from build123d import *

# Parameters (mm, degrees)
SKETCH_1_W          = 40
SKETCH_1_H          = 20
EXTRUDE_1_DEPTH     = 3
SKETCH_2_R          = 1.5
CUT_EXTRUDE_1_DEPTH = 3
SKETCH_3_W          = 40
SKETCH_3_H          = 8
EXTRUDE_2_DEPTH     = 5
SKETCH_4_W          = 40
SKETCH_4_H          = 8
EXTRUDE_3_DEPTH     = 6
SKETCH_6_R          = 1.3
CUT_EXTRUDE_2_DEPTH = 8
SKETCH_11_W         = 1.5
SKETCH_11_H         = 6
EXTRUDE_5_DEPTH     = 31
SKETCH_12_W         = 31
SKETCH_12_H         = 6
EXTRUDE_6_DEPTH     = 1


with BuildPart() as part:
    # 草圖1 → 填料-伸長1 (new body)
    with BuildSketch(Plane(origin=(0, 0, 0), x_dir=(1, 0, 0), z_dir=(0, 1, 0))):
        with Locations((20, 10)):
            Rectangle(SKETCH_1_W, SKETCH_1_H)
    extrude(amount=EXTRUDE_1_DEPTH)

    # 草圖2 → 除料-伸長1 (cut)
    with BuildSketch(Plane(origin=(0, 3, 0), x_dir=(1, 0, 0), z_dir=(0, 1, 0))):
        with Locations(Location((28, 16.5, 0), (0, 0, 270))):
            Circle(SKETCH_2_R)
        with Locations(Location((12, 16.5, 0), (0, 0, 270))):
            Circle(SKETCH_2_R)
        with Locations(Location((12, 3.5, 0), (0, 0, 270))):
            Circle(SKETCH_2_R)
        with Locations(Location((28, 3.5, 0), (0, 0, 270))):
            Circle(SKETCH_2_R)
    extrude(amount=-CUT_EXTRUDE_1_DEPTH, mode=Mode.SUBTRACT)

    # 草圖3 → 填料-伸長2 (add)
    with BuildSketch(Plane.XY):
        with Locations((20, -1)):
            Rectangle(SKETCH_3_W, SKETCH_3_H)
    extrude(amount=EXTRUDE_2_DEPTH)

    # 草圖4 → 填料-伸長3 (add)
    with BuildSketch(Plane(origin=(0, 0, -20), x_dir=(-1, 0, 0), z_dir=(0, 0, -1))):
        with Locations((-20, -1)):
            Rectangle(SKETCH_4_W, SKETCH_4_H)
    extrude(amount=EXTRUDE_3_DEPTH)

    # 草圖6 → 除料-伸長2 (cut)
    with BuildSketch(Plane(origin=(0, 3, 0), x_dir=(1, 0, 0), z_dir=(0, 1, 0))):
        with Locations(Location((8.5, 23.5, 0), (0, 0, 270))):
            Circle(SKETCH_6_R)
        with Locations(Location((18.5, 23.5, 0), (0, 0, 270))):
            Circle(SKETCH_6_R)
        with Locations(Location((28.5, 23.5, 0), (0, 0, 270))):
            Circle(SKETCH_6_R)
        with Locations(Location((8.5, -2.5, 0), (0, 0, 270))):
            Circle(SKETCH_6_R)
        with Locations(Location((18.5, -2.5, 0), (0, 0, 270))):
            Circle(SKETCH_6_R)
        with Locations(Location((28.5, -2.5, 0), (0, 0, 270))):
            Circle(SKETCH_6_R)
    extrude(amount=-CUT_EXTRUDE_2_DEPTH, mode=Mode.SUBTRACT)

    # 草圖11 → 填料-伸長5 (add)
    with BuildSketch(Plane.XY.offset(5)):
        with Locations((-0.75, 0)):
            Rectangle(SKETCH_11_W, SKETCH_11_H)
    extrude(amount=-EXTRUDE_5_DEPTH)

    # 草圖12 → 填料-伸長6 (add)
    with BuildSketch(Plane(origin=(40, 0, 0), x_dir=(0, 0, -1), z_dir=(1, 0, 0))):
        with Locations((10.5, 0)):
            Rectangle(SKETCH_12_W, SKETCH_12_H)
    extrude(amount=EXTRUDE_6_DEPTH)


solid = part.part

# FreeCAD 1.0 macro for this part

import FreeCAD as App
import Part
import Sketcher
Q = App.Units.Quantity

doc = App.newDocument("Part")
body = doc.addObject("PartDesign::Body", "Body")

sketch1 = body.newObject("Sketcher::SketchObject", "Sketch")
sketch1.AttachmentSupport = (doc.getObject("XZ_Plane"), [""])
sketch1.MapMode = "FlatFace"
sketch1.addGeometry(Part.LineSegment(App.Vector(0, -20, 0), App.Vector(0, 0, 0)), False)
sketch1.addGeometry(Part.LineSegment(App.Vector(0, 0, 0), App.Vector(40, 0, 0)), False)
sketch1.addGeometry(Part.LineSegment(App.Vector(40, 0, 0), App.Vector(40, -20, 0)), False)
sketch1.addGeometry(Part.LineSegment(App.Vector(40, -20, 0), App.Vector(0, -20, 0)), False)
sketch1.addConstraint(Sketcher.Constraint("Coincident", 0, 2, 1, 1))
sketch1.addConstraint(Sketcher.Constraint("Coincident", 1, 2, 2, 1))
sketch1.addConstraint(Sketcher.Constraint("Coincident", 2, 2, 3, 1))
sketch1.addConstraint(Sketcher.Constraint("Coincident", 3, 2, 0, 1))
sketch1.addConstraint(Sketcher.Constraint("Vertical", 0))
sketch1.addConstraint(Sketcher.Constraint("Horizontal", 1))
sketch1.addConstraint(Sketcher.Constraint("Vertical", 2))
sketch1.addConstraint(Sketcher.Constraint("Horizontal", 3))
sketch1.addConstraint(Sketcher.Constraint("Coincident", 0, 2, -1, 1))
sketch1.addConstraint(Sketcher.Constraint("DistanceX", 1, 1, 1, 2, Q("40 mm")))
sketch1.addConstraint(Sketcher.Constraint("DistanceY", 0, 1, 0, 2, Q("20 mm")))
pad1 = body.newObject("PartDesign::Pad", "Pad")
pad1.Profile = sketch1
pad1.Length = 3
pad1.Reversed = True

sketch2 = body.newObject("Sketcher::SketchObject", "Sketch001")
sketch2.AttachmentSupport = (doc.getObject("XZ_Plane"), [""])
sketch2.MapMode = "FlatFace"
sketch2.AttachmentOffset = App.Placement(App.Vector(0, 0, -3), App.Rotation())
sketch2.addGeometry(Part.Circle(App.Vector(28, -16.5, 0), App.Vector(0, 0, 1), 1.5), False)
sketch2.addGeometry(Part.Circle(App.Vector(12, -16.5, 0), App.Vector(0, 0, 1), 1.5), False)
sketch2.addGeometry(Part.Circle(App.Vector(12, -3.5, 0), App.Vector(0, 0, 1), 1.5), False)
sketch2.addGeometry(Part.Circle(App.Vector(28, -3.5, 0), App.Vector(0, 0, 1), 1.5), False)
sketch2.addConstraint(Sketcher.Constraint("Equal", 0, 1))
sketch2.addConstraint(Sketcher.Constraint("Equal", 1, 2))
sketch2.addConstraint(Sketcher.Constraint("Equal", 2, 3))
sketch2.addConstraint(Sketcher.Constraint("Horizontal", 0, 3, 1, 3))
sketch2.addConstraint(Sketcher.Constraint("Horizontal", 2, 3, 3, 3))
sketch2.addConstraint(Sketcher.Constraint("Vertical", 1, 3, 2, 3))
sketch2.addConstraint(Sketcher.Constraint("Vertical", 0, 3, 3, 3))
sketch2.addConstraint(Sketcher.Constraint("Diameter", 0, Q("3 mm")))
sketch2.addConstraint(Sketcher.Constraint("DistanceX", -1, 1, 0, 3, Q("28 mm")))
sketch2.addConstraint(Sketcher.Constraint("DistanceX", -1, 1, 1, 3, Q("12 mm")))
sketch2.addConstraint(Sketcher.Constraint("DistanceY", 1, 3, 2, 3, Q("13 mm")))
sketch2.addConstraint(Sketcher.Constraint("DistanceY", 0, 3, -1, 1, Q("16.5 mm")))
pocket1 = body.newObject("PartDesign::Pocket", "Pocket")
pocket1.Profile = sketch2
pocket1.Length = 3
pocket1.Reversed = True

sketch3 = body.newObject("Sketcher::SketchObject", "Sketch002")
sketch3.AttachmentSupport = (doc.getObject("XY_Plane"), [""])
sketch3.MapMode = "FlatFace"
sketch3.addGeometry(Part.LineSegment(App.Vector(0, 3, 0), App.Vector(0, -5, 0)), False)
sketch3.addGeometry(Part.LineSegment(App.Vector(0, -5, 0), App.Vector(40, -5, 0)), False)
sketch3.addGeometry(Part.LineSegment(App.Vector(40, -5, 0), App.Vector(40, 3, 0)), False)
sketch3.addGeometry(Part.LineSegment(App.Vector(40, 3, 0), App.Vector(0, 3, 0)), False)
sketch3.addConstraint(Sketcher.Constraint("Coincident", 0, 2, 1, 1))
sketch3.addConstraint(Sketcher.Constraint("Coincident", 1, 2, 2, 1))
sketch3.addConstraint(Sketcher.Constraint("Coincident", 2, 2, 3, 1))
sketch3.addConstraint(Sketcher.Constraint("Coincident", 3, 2, 0, 1))
sketch3.addConstraint(Sketcher.Constraint("Vertical", 0))
sketch3.addConstraint(Sketcher.Constraint("Horizontal", 1))
sketch3.addConstraint(Sketcher.Constraint("Vertical", 2))
sketch3.addConstraint(Sketcher.Constraint("Horizontal", 3))
sketch3.addConstraint(Sketcher.Constraint("PointOnObject", 0, 2, -2))
sketch3.addConstraint(Sketcher.Constraint("DistanceX", 1, 1, 1, 2, Q("40 mm")))
sketch3.addConstraint(Sketcher.Constraint("DistanceY", 0, 2, 0, 1, Q("8 mm")))
sketch3.addConstraint(Sketcher.Constraint("DistanceY", 0, 2, -1, 1, Q("5 mm")))
pad2 = body.newObject("PartDesign::Pad", "Pad001")
pad2.Profile = sketch3
pad2.Length = 5

sketch4 = body.newObject("Sketcher::SketchObject", "Sketch003")
sketch4.AttachmentSupport = (doc.getObject("XY_Plane"), [""])
sketch4.MapMode = "FlatFace"
sketch4.AttachmentOffset = App.Placement(App.Vector(0, 0, -20), App.Rotation())
sketch4.addGeometry(Part.LineSegment(App.Vector(40, 3, 0), App.Vector(40, -5, 0)), False)
sketch4.addGeometry(Part.LineSegment(App.Vector(40, -5, 0), App.Vector(0, -5, 0)), False)
sketch4.addGeometry(Part.LineSegment(App.Vector(0, -5, 0), App.Vector(0, 3, 0)), False)
sketch4.addGeometry(Part.LineSegment(App.Vector(0, 3, 0), App.Vector(40, 3, 0)), False)
sketch4.addConstraint(Sketcher.Constraint("Coincident", 0, 2, 1, 1))
sketch4.addConstraint(Sketcher.Constraint("Coincident", 1, 2, 2, 1))
sketch4.addConstraint(Sketcher.Constraint("Coincident", 2, 2, 3, 1))
sketch4.addConstraint(Sketcher.Constraint("Coincident", 3, 2, 0, 1))
sketch4.addConstraint(Sketcher.Constraint("Vertical", 0))
sketch4.addConstraint(Sketcher.Constraint("Horizontal", 1))
sketch4.addConstraint(Sketcher.Constraint("Vertical", 2))
sketch4.addConstraint(Sketcher.Constraint("Horizontal", 3))
sketch4.addConstraint(Sketcher.Constraint("PointOnObject", 1, 2, -2))
sketch4.addConstraint(Sketcher.Constraint("DistanceX", 1, 2, 1, 1, Q("40 mm")))
sketch4.addConstraint(Sketcher.Constraint("DistanceY", 0, 2, 0, 1, Q("8 mm")))
sketch4.addConstraint(Sketcher.Constraint("DistanceY", 0, 2, -1, 1, Q("5 mm")))
pad3 = body.newObject("PartDesign::Pad", "Pad002")
pad3.Profile = sketch4
pad3.Length = 6
pad3.Reversed = True

sketch5 = body.newObject("Sketcher::SketchObject", "Sketch004")
sketch5.AttachmentSupport = (doc.getObject("XZ_Plane"), [""])
sketch5.MapMode = "FlatFace"
sketch5.AttachmentOffset = App.Placement(App.Vector(0, 0, -3), App.Rotation())
sketch5.addGeometry(Part.Circle(App.Vector(8.5, -23.5, 0), App.Vector(0, 0, 1), 1.3), False)
sketch5.addGeometry(Part.Circle(App.Vector(18.5, -23.5, 0), App.Vector(0, 0, 1), 1.3), False)
sketch5.addGeometry(Part.Circle(App.Vector(28.5, -23.5, 0), App.Vector(0, 0, 1), 1.3), False)
sketch5.addGeometry(Part.Circle(App.Vector(8.5, 2.5, 0), App.Vector(0, 0, 1), 1.3), False)
sketch5.addGeometry(Part.Circle(App.Vector(18.5, 2.5, 0), App.Vector(0, 0, 1), 1.3), False)
sketch5.addGeometry(Part.Circle(App.Vector(28.5, 2.5, 0), App.Vector(0, 0, 1), 1.3), False)
sketch5.addConstraint(Sketcher.Constraint("Equal", 0, 1))
sketch5.addConstraint(Sketcher.Constraint("Equal", 1, 2))
sketch5.addConstraint(Sketcher.Constraint("Equal", 2, 3))
sketch5.addConstraint(Sketcher.Constraint("Equal", 3, 4))
sketch5.addConstraint(Sketcher.Constraint("Equal", 4, 5))
sketch5.addConstraint(Sketcher.Constraint("Horizontal", 0, 3, 1, 3))
sketch5.addConstraint(Sketcher.Constraint("Horizontal", 1, 3, 2, 3))
sketch5.addConstraint(Sketcher.Constraint("Horizontal", 3, 3, 4, 3))
sketch5.addConstraint(Sketcher.Constraint("Horizontal", 4, 3, 5, 3))
sketch5.addConstraint(Sketcher.Constraint("Vertical", 0, 3, 3, 3))
sketch5.addConstraint(Sketcher.Constraint("Vertical", 1, 3, 4, 3))
sketch5.addConstraint(Sketcher.Constraint("Vertical", 2, 3, 5, 3))
sketch5.addConstraint(Sketcher.Constraint("Diameter", 0, Q("2.6 mm")))
sketch5.addConstraint(Sketcher.Constraint("DistanceX", 0, 3, 1, 3, Q("10 mm")))
sketch5.addConstraint(Sketcher.Constraint("DistanceX", 1, 3, 2, 3, Q("10 mm")))
sketch5.addConstraint(Sketcher.Constraint("DistanceY", 0, 3, 3, 3, Q("26 mm")))
sketch5.addConstraint(Sketcher.Constraint("DistanceX", -1, 1, 0, 3, Q("8.5 mm")))
sketch5.addConstraint(Sketcher.Constraint("DistanceY", 0, 3, -1, 1, Q("23.5 mm")))
pocket2 = body.newObject("PartDesign::Pocket", "Pocket001")
pocket2.Profile = sketch5
pocket2.Length = 8
pocket2.Reversed = True

sketch6 = body.newObject("Sketcher::SketchObject", "Sketch005")
sketch6.AttachmentSupport = (doc.getObject("XY_Plane"), [""])
sketch6.MapMode = "FlatFace"
sketch6.AttachmentOffset = App.Placement(App.Vector(0, 0, 5), App.Rotation())
sketch6.addGeometry(Part.LineSegment(App.Vector(-1.5, 3, 0), App.Vector(-1.5, -3, 0)), False)
sketch6.addGeometry(Part.LineSegment(App.Vector(-1.5, -3, 0), App.Vector(0, -3, 0)), False)
sketch6.addGeometry(Part.LineSegment(App.Vector(0, -3, 0), App.Vector(0, 3, 0)), False)
sketch6.addGeometry(Part.LineSegment(App.Vector(0, 3, 0), App.Vector(-1.5, 3, 0)), False)
sketch6.addConstraint(Sketcher.Constraint("Coincident", 0, 2, 1, 1))
sketch6.addConstraint(Sketcher.Constraint("Coincident", 1, 2, 2, 1))
sketch6.addConstraint(Sketcher.Constraint("Coincident", 2, 2, 3, 1))
sketch6.addConstraint(Sketcher.Constraint("Coincident", 3, 2, 0, 1))
sketch6.addConstraint(Sketcher.Constraint("Vertical", 0))
sketch6.addConstraint(Sketcher.Constraint("Horizontal", 1))
sketch6.addConstraint(Sketcher.Constraint("Vertical", 2))
sketch6.addConstraint(Sketcher.Constraint("Horizontal", 3))
sketch6.addConstraint(Sketcher.Constraint("Symmetric", 1, 2, 2, 2, -1, 1))
sketch6.addConstraint(Sketcher.Constraint("DistanceY", 0, 2, 0, 1, Q("6 mm")))
sketch6.addConstraint(Sketcher.Constraint("DistanceX", 1, 1, 1, 2, Q("1.5 mm")))
pad4 = body.newObject("PartDesign::Pad", "Pad003")
pad4.Profile = sketch6
pad4.Length = 31
pad4.Reversed = True

sketch7 = body.newObject("Sketcher::SketchObject", "Sketch006")
sketch7.AttachmentSupport = (doc.getObject("YZ_Plane"), [""])
sketch7.MapMode = "FlatFace"
sketch7.AttachmentOffset = App.Placement(App.Vector(0, 0, 40), App.Rotation())
sketch7.addGeometry(Part.LineSegment(App.Vector(3, 5, 0), App.Vector(-3, 5, 0)), False)
sketch7.addGeometry(Part.LineSegment(App.Vector(-3, 5, 0), App.Vector(-3, -26, 0)), False)
sketch7.addGeometry(Part.LineSegment(App.Vector(-3, -26, 0), App.Vector(3, -26, 0)), False)
sketch7.addGeometry(Part.LineSegment(App.Vector(3, -26, 0), App.Vector(3, 5, 0)), False)
sketch7.addConstraint(Sketcher.Constraint("Coincident", 0, 2, 1, 1))
sketch7.addConstraint(Sketcher.Constraint("Coincident", 1, 2, 2, 1))
sketch7.addConstraint(Sketcher.Constraint("Coincident", 2, 2, 3, 1))
sketch7.addConstraint(Sketcher.Constraint("Coincident", 3, 2, 0, 1))
sketch7.addConstraint(Sketcher.Constraint("Horizontal", 0))
sketch7.addConstraint(Sketcher.Constraint("Vertical", 1))
sketch7.addConstraint(Sketcher.Constraint("Horizontal", 2))
sketch7.addConstraint(Sketcher.Constraint("Vertical", 3))
sketch7.addConstraint(Sketcher.Constraint("DistanceX", 0, 2, 0, 1, Q("6 mm")))
sketch7.addConstraint(Sketcher.Constraint("DistanceY", 1, 2, 1, 1, Q("31 mm")))
sketch7.addConstraint(Sketcher.Constraint("DistanceX", 0, 2, -1, 1, Q("3 mm")))
sketch7.addConstraint(Sketcher.Constraint("DistanceY", -1, 1, 0, 2, Q("5 mm")))
pad5 = body.newObject("PartDesign::Pad", "Pad004")
pad5.Profile = sketch7
pad5.Length = 1

doc.recompute()
